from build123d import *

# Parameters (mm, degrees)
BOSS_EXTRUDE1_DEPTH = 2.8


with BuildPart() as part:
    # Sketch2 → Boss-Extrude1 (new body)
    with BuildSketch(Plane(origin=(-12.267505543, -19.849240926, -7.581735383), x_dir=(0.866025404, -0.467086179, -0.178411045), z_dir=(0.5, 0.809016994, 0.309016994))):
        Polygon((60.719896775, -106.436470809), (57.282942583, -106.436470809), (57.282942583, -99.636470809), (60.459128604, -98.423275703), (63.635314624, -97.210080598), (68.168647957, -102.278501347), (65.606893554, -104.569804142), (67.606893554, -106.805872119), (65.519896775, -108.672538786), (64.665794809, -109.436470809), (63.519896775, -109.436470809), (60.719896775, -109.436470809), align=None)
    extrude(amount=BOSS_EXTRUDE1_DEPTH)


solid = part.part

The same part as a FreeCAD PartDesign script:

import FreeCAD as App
import Part
import Sketcher

doc = App.newDocument("Part")
body = doc.addObject("PartDesign::Body", "Body")

sketch1 = doc.addObject("Sketcher::SketchObject", "Sketch")
body.addObject(sketch1)
sketch1.Placement = App.Placement(App.Vector(-12.267506, -19.849241, -7.581735), App.Rotation(App.Vector(0.866025404, -0.46708618, -0.178411045), App.Vector(0, 0.35682209, -0.934172359), App.Vector(0.5, 0.809016994, 0.309016994), "ZXY"))
sketch1.addGeometry([
    Part.LineSegment(App.Vector(57.282943, -106.436471, 0), App.Vector(60.719897, -106.436471, 0)),
    Part.LineSegment(App.Vector(60.719897, -106.436471, 0), App.Vector(60.719897, -109.436471, 0)),
    Part.LineSegment(App.Vector(60.719897, -109.436471, 0), App.Vector(64.665795, -109.436471, 0)),
    Part.LineSegment(App.Vector(64.665795, -109.436471, 0), App.Vector(65.519897, -108.672539, 0)),
    Part.LineSegment(App.Vector(65.519897, -108.672539, 0), App.Vector(67.606894, -106.805872, 0)),
    Part.LineSegment(App.Vector(67.606894, -106.805872, 0), App.Vector(65.606894, -104.569804, 0)),
    Part.LineSegment(App.Vector(65.606894, -104.569804, 0), App.Vector(68.168648, -102.278501, 0)),
    Part.LineSegment(App.Vector(68.168648, -102.278501, 0), App.Vector(63.635315, -97.210081, 0)),
    Part.LineSegment(App.Vector(63.635315, -97.210081, 0), App.Vector(60.459129, -98.423276, 0)),
    Part.LineSegment(App.Vector(60.459129, -98.423276, 0), App.Vector(57.282943, -99.636471, 0)),
    Part.LineSegment(App.Vector(57.282943, -99.636471, 0), App.Vector(57.282943, -106.436471, 0)),
], False)
sketch1.addConstraint([
    Sketcher.Constraint("Coincident", 0, 2, 1, 1),
    Sketcher.Constraint("Coincident", 1, 2, 2, 1),
    Sketcher.Constraint("Coincident", 2, 2, 3, 1),
    Sketcher.Constraint("Coincident", 3, 2, 4, 1),
    Sketcher.Constraint("Coincident", 4, 2, 5, 1),
    Sketcher.Constraint("Coincident", 5, 2, 6, 1),
    Sketcher.Constraint("Coincident", 6, 2, 7, 1),
    Sketcher.Constraint("Coincident", 7, 2, 8, 1),
    Sketcher.Constraint("Coincident", 8, 2, 9, 1),
    Sketcher.Constraint("Coincident", 9, 2, 10, 1),
    Sketcher.Constraint("Coincident", 10, 2, 0, 1),
    Sketcher.Constraint("Horizontal", 0),
    Sketcher.Constraint("Vertical", 1),
    Sketcher.Constraint("Horizontal", 2),
    Sketcher.Constraint("Vertical", 10),
    Sketcher.Constraint("Parallel", 3, 4),
    Sketcher.Constraint("Perpendicular", 4, 5),
    Sketcher.Constraint("Perpendicular", 5, 6),
    Sketcher.Constraint("Perpendicular", 6, 7),
    Sketcher.Constraint("Parallel", 8, 9),
    Sketcher.Constraint("Equal", 8, 9),
    Sketcher.Constraint("DistanceY", 1, 2, 1, 1, 3.0),
    Sketcher.Constraint("Distance", 5, 3.0),
    Sketcher.Constraint("DistanceY", 10, 2, 10, 1, 6.8),
    Sketcher.Constraint("DistanceX", 5, 2, 4, 2, 2.0),
    Sketcher.Constraint("Distance", 4, 2.8),
    Sketcher.Constraint("Distance", 7, 6.8),
    Sketcher.Constraint("Distance", 8, 3.4),
    Sketcher.Constraint("DistanceX", 1, 2, 3, 2, 4.8),
    Sketcher.Constraint("DistanceX", 2, 1, 2, 2, 3.945898),
    Sketcher.Constraint("DistanceY", 6, 2, -1, 1, 102.278501),
    Sketcher.Constraint("DistanceX", 0, 1, 0, 2, 3.436954),
    Sketcher.Constraint("DistanceX", -1, 1, 6, 2, 68.168648),
])
pad1 = doc.addObject("PartDesign::Pad", "Pad")
body.addObject(pad1)
pad1.Profile = sketch1
pad1.Length = 2.8

doc.recompute()
